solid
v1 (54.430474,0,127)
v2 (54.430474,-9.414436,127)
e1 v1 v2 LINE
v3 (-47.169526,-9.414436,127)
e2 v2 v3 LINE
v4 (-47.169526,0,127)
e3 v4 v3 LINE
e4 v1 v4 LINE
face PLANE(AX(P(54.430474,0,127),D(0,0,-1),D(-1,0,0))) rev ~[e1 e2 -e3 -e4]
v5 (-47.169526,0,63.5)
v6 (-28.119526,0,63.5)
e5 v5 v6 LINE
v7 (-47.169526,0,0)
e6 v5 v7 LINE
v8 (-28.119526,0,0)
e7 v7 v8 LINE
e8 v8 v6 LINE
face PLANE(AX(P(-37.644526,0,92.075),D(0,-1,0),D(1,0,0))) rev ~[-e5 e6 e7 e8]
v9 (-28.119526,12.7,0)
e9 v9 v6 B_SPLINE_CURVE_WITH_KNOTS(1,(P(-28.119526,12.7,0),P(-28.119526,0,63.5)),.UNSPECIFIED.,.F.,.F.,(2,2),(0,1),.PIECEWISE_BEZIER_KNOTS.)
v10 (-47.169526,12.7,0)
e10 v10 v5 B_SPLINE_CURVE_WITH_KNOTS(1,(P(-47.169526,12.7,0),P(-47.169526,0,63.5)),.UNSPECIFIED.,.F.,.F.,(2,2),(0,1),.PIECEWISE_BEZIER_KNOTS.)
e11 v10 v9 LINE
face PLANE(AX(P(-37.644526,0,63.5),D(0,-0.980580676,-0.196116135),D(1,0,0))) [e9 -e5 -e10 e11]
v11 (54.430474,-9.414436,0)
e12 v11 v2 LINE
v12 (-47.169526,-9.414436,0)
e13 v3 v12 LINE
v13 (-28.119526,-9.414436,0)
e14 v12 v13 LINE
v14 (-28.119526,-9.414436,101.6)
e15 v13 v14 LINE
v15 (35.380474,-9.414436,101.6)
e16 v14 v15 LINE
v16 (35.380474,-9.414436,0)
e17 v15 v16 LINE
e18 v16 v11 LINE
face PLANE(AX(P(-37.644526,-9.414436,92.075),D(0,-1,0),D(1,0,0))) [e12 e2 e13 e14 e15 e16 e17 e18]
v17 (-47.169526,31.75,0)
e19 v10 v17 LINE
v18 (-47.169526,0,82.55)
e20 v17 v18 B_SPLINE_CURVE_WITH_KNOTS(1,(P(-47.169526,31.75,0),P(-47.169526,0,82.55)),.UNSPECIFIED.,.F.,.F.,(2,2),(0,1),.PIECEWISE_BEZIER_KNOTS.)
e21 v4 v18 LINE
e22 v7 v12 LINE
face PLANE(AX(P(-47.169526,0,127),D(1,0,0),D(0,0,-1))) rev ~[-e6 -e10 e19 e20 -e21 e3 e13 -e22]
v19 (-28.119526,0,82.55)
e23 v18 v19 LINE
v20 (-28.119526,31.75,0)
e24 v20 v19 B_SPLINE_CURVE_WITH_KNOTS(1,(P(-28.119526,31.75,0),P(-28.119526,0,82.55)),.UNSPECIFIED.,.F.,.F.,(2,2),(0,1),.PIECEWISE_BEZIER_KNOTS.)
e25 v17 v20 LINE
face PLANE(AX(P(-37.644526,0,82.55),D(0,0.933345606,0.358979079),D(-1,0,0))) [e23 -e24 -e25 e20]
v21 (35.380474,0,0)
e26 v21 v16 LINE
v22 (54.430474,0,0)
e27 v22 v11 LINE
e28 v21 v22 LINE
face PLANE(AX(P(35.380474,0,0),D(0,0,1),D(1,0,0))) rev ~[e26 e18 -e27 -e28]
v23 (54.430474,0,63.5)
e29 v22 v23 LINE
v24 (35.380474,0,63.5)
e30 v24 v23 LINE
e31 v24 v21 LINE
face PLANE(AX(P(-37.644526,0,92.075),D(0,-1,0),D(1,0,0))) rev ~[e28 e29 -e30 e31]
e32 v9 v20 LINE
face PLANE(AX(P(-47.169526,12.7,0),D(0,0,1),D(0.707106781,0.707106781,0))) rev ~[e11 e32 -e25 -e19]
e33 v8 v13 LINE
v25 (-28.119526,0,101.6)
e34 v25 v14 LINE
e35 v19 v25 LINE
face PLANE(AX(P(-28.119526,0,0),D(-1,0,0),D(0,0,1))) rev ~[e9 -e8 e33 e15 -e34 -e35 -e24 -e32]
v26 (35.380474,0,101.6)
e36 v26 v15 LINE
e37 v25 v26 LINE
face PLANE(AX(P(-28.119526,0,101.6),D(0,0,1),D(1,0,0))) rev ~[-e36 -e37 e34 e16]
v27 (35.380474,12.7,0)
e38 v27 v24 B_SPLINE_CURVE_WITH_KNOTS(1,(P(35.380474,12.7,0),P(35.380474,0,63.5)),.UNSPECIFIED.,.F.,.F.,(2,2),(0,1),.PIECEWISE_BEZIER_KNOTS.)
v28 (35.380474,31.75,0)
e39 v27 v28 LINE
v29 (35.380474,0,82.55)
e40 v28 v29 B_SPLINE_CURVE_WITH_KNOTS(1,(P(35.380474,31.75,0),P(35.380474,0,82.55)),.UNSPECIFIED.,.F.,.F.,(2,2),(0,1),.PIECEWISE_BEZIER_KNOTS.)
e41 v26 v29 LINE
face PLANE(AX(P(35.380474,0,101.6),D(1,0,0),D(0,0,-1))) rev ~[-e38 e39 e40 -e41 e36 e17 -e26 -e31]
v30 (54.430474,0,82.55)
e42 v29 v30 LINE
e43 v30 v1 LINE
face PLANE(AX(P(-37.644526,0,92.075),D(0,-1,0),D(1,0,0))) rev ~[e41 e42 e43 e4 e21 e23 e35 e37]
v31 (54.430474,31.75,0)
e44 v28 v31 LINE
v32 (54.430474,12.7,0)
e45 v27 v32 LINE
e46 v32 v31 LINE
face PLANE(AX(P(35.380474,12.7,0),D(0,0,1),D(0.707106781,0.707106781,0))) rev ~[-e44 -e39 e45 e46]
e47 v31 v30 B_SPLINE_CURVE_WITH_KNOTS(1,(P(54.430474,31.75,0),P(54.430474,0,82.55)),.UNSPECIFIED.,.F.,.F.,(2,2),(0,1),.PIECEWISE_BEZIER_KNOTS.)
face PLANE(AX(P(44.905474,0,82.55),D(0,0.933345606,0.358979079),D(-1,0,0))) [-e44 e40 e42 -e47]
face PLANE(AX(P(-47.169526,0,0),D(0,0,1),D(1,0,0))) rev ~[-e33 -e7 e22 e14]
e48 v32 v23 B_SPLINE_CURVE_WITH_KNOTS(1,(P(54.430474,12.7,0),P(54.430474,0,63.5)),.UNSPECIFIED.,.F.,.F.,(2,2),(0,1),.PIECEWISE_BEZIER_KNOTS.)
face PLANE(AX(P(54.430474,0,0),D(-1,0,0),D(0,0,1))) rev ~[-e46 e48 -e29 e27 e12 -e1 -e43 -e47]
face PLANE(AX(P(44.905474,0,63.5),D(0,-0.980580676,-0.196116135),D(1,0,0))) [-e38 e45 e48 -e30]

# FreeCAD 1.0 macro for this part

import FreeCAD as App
import Part
import Sketcher

V = App.Vector
Q = App.Units.Quantity

doc = App.newDocument("Part")
body = doc.addObject("PartDesign::Body", "Body")

# Sketch on XY plane
sketch1 = body.newObject("Sketcher::SketchObject", "Sketch")
sketch1.AttachmentSupport = (doc.getObject("XY_Plane"), [""])
sketch1.MapMode = "FlatFace"
sketch1.addGeometry([
    Part.LineSegment(V(35.380474, 31.75, 0), V(35.380474, 12.7, 0)),
    Part.LineSegment(V(35.380474, 12.7, 0), V(54.430474, 12.7, 0)),
    Part.LineSegment(V(54.430474, 12.7, 0), V(54.430474, 31.75, 0)),
    Part.LineSegment(V(54.430474, 31.75, 0), V(35.380474, 31.75, 0)),
], False)
sketch1.addConstraint([
    Sketcher.Constraint("Coincident", 0, 2, 1, 1),
    Sketcher.Constraint("Coincident", 1, 2, 2, 1),
    Sketcher.Constraint("Coincident", 2, 2, 3, 1),
    Sketcher.Constraint("Coincident", 3, 2, 0, 1),
    Sketcher.Constraint("Vertical", 0),
    Sketcher.Constraint("Horizontal", 1),
    Sketcher.Constraint("Vertical", 2),
    Sketcher.Constraint("Horizontal", 3),
    Sketcher.Constraint("Equal", 3, 0),
    Sketcher.Constraint("DistanceX", 1, 1, 1, 2, Q("0.75 in")),
    Sketcher.Constraint("DistanceY", -1, 1, 0, 2, Q("0.5 in")),
    Sketcher.Constraint("DistanceX", -1, 1, 0, 2, 35.380474),
])

# Sketch on XZ plane
sketch2 = body.newObject("Sketcher::SketchObject", "Sketch001")
sketch2.AttachmentSupport = (doc.getObject("XZ_Plane"), [""])
sketch2.MapMode = "FlatFace"
sketch2.addGeometry([
    Part.LineSegment(V(35.380474, 82.55, 0), V(35.380474, 63.5, 0)),
    Part.LineSegment(V(35.380474, 63.5, 0), V(54.430474, 63.5, 0)),
    Part.LineSegment(V(54.430474, 63.5, 0), V(54.430474, 82.55, 0)),
    Part.LineSegment(V(54.430474, 82.55, 0), V(35.380474, 82.55, 0)),
], False)
sketch2.addConstraint([
    Sketcher.Constraint("Coincident", 0, 2, 1, 1),
    Sketcher.Constraint("Coincident", 1, 2, 2, 1),
    Sketcher.Constraint("Coincident", 2, 2, 3, 1),
    Sketcher.Constraint("Coincident", 3, 2, 0, 1),
    Sketcher.Constraint("Vertical", 0),
    Sketcher.Constraint("Horizontal", 1),
    Sketcher.Constraint("Vertical", 2),
    Sketcher.Constraint("Horizontal", 3),
    Sketcher.Constraint("Equal", 3, 0),
    Sketcher.Constraint("DistanceX", 1, 1, 1, 2, Q("0.75 in")),
    Sketcher.Constraint("DistanceY", -1, 1, 0, 2, Q("2.5 in")),
    Sketcher.Constraint("DistanceX", -1, 1, 0, 2, 35.380474),
])

additiveloft = body.newObject("PartDesign::AdditiveLoft", "AdditiveLoft")
additiveloft.Profile = sketch1
additiveloft.Sections = [sketch2]
body2 = doc.addObject("PartDesign::Body", "Body001")

# Sketch on XY plane
sketch3 = body2.newObject("Sketcher::SketchObject", "Sketch002")
sketch3.AttachmentSupport = (doc.getObject("XY_Plane001"), [""])
sketch3.MapMode = "FlatFace"
sketch3.addGeometry([
    Part.LineSegment(V(-47.169526, 31.75, 0), V(-47.169526, 12.7, 0)),
    Part.LineSegment(V(-47.169526, 12.7, 0), V(-28.119526, 12.7, 0)),
    Part.LineSegment(V(-28.119526, 12.7, 0), V(-28.119526, 31.75, 0)),
    Part.LineSegment(V(-28.119526, 31.75, 0), V(-47.169526, 31.75, 0)),
], False)
sketch3.addConstraint([
    Sketcher.Constraint("Coincident", 0, 2, 1, 1),
    Sketcher.Constraint("Coincident", 1, 2, 2, 1),
    Sketcher.Constraint("Coincident", 2, 2, 3, 1),
    Sketcher.Constraint("Coincident", 3, 2, 0, 1),
    Sketcher.Constraint("Vertical", 0),
    Sketcher.Constraint("Horizontal", 1),
    Sketcher.Constraint("Vertical", 2),
    Sketcher.Constraint("Horizontal", 3),
    Sketcher.Constraint("Equal", 3, 0),
    Sketcher.Constraint("DistanceX", 1, 1, 1, 2, Q("0.75 in")),
    Sketcher.Constraint("DistanceY", -1, 1, 0, 2, Q("0.5 in")),
    Sketcher.Constraint("DistanceX", 0, 2, -1, 1, 47.169526),
])

# Sketch on XZ plane
sketch4 = body2.newObject("Sketcher::SketchObject", "Sketch003")
sketch4.AttachmentSupport = (doc.getObject("XZ_Plane001"), [""])
sketch4.MapMode = "FlatFace"
sketch4.addGeometry([
    Part.LineSegment(V(-47.169526, 82.55, 0), V(-47.169526, 63.5, 0)),
    Part.LineSegment(V(-47.169526, 63.5, 0), V(-28.119526, 63.5, 0)),
    Part.LineSegment(V(-28.119526, 63.5, 0), V(-28.119526, 82.55, 0)),
    Part.LineSegment(V(-28.119526, 82.55, 0), V(-47.169526, 82.55, 0)),
], False)
sketch4.addConstraint([
    Sketcher.Constraint("Coincident", 0, 2, 1, 1),
    Sketcher.Constraint("Coincident", 1, 2, 2, 1),
    Sketcher.Constraint("Coincident", 2, 2, 3, 1),
    Sketcher.Constraint("Coincident", 3, 2, 0, 1),
    Sketcher.Constraint("Vertical", 0),
    Sketcher.Constraint("Horizontal", 1),
    Sketcher.Constraint("Vertical", 2),
    Sketcher.Constraint("Horizontal", 3),
    Sketcher.Constraint("Equal", 3, 0),
    Sketcher.Constraint("DistanceX", 1, 1, 1, 2, Q("0.75 in")),
    Sketcher.Constraint("DistanceY", -1, 1, 0, 2, Q("2.5 in")),
    Sketcher.Constraint("DistanceX", 0, 2, -1, 1, 47.169526),
])

additiveloft2 = body2.newObject("PartDesign::AdditiveLoft", "AdditiveLoft001")
additiveloft2.Profile = sketch3
additiveloft2.Sections = [sketch4]
body.AllowCompound = True
doc.recompute()

boolean = body.newObject("PartDesign::Boolean", "Boolean")
boolean.Type = "Fuse"
boolean.addObjects([body2])

# Sketch on XZ plane
sketch5 = body.newObject("Sketcher::SketchObject", "Sketch004")
sketch5.AttachmentSupport = (doc.getObject("XZ_Plane"), [""])
sketch5.MapMode = "FlatFace"
sketch5.addGeometry([
    Part.LineSegment(V(-28.119526, 101.6, 0), V(35.380474, 101.6, 0)),  # 0
    Part.LineSegment(V(35.380474, 101.6, 0), V(35.380474, 0, 0)),  # 1
    Part.LineSegment(V(35.380474, 0, 0), V(54.430474, 0, 0)),  # 2
    Part.LineSegment(V(54.430474, 0, 0), V(54.430474, 127, 0)),  # 3
    Part.LineSegment(V(54.430474, 127, 0), V(-47.169526, 127, 0)),  # 4
    Part.LineSegment(V(-47.169526, 127, 0), V(-47.169526, 0, 0)),  # 5
    Part.LineSegment(V(-47.169526, 0, 0), V(-28.119526, 0, 0)),  # 6
    Part.LineSegment(V(-28.119526, 0, 0), V(-28.119526, 101.6, 0)),  # 7
], False)
sketch5.addConstraint([
    Sketcher.Constraint("Coincident", 0, 2, 1, 1),
    Sketcher.Constraint("Coincident", 1, 2, 2, 1),
    Sketcher.Constraint("Coincident", 2, 2, 3, 1),
    Sketcher.Constraint("Coincident", 3, 2, 4, 1),
    Sketcher.Constraint("Coincident", 4, 2, 5, 1),
    Sketcher.Constraint("Coincident", 5, 2, 6, 1),
    Sketcher.Constraint("Coincident", 6, 2, 7, 1),
    Sketcher.Constraint("Coincident", 7, 2, 0, 1),
    Sketcher.Constraint("Horizontal", 0),
    Sketcher.Constraint("Vertical", 1),
    Sketcher.Constraint("Horizontal", 2),
    Sketcher.Constraint("Vertical", 3),
    Sketcher.Constraint("Horizontal", 4),
    Sketcher.Constraint("Vertical", 5),
    Sketcher.Constraint("Horizontal", 6),
    Sketcher.Constraint("Vertical", 7),
    Sketcher.Constraint("PointOnObject", 1, 2, -1),
    Sketcher.Constraint("PointOnObject", 5, 2, -1),
    Sketcher.Constraint("Equal", 2, 6),
    Sketcher.Constraint("Equal", 4, 1),
    Sketcher.Constraint("DistanceX", 4, 2, 4, 1, Q("4 in")),
    Sketcher.Constraint("DistanceY", 3, 1, 3, 2, Q("5 in")),
    Sketcher.Constraint("DistanceX", 0, 1, 0, 2, Q("2.5 in")),
    Sketcher.Constraint("DistanceX", -1, 1, 0, 2, 35.380474),
])
pad1 = body.newObject("PartDesign::Pad", "Pad")
pad1.Profile = sketch5
pad1.Length = 9.414436

doc.recompute()
